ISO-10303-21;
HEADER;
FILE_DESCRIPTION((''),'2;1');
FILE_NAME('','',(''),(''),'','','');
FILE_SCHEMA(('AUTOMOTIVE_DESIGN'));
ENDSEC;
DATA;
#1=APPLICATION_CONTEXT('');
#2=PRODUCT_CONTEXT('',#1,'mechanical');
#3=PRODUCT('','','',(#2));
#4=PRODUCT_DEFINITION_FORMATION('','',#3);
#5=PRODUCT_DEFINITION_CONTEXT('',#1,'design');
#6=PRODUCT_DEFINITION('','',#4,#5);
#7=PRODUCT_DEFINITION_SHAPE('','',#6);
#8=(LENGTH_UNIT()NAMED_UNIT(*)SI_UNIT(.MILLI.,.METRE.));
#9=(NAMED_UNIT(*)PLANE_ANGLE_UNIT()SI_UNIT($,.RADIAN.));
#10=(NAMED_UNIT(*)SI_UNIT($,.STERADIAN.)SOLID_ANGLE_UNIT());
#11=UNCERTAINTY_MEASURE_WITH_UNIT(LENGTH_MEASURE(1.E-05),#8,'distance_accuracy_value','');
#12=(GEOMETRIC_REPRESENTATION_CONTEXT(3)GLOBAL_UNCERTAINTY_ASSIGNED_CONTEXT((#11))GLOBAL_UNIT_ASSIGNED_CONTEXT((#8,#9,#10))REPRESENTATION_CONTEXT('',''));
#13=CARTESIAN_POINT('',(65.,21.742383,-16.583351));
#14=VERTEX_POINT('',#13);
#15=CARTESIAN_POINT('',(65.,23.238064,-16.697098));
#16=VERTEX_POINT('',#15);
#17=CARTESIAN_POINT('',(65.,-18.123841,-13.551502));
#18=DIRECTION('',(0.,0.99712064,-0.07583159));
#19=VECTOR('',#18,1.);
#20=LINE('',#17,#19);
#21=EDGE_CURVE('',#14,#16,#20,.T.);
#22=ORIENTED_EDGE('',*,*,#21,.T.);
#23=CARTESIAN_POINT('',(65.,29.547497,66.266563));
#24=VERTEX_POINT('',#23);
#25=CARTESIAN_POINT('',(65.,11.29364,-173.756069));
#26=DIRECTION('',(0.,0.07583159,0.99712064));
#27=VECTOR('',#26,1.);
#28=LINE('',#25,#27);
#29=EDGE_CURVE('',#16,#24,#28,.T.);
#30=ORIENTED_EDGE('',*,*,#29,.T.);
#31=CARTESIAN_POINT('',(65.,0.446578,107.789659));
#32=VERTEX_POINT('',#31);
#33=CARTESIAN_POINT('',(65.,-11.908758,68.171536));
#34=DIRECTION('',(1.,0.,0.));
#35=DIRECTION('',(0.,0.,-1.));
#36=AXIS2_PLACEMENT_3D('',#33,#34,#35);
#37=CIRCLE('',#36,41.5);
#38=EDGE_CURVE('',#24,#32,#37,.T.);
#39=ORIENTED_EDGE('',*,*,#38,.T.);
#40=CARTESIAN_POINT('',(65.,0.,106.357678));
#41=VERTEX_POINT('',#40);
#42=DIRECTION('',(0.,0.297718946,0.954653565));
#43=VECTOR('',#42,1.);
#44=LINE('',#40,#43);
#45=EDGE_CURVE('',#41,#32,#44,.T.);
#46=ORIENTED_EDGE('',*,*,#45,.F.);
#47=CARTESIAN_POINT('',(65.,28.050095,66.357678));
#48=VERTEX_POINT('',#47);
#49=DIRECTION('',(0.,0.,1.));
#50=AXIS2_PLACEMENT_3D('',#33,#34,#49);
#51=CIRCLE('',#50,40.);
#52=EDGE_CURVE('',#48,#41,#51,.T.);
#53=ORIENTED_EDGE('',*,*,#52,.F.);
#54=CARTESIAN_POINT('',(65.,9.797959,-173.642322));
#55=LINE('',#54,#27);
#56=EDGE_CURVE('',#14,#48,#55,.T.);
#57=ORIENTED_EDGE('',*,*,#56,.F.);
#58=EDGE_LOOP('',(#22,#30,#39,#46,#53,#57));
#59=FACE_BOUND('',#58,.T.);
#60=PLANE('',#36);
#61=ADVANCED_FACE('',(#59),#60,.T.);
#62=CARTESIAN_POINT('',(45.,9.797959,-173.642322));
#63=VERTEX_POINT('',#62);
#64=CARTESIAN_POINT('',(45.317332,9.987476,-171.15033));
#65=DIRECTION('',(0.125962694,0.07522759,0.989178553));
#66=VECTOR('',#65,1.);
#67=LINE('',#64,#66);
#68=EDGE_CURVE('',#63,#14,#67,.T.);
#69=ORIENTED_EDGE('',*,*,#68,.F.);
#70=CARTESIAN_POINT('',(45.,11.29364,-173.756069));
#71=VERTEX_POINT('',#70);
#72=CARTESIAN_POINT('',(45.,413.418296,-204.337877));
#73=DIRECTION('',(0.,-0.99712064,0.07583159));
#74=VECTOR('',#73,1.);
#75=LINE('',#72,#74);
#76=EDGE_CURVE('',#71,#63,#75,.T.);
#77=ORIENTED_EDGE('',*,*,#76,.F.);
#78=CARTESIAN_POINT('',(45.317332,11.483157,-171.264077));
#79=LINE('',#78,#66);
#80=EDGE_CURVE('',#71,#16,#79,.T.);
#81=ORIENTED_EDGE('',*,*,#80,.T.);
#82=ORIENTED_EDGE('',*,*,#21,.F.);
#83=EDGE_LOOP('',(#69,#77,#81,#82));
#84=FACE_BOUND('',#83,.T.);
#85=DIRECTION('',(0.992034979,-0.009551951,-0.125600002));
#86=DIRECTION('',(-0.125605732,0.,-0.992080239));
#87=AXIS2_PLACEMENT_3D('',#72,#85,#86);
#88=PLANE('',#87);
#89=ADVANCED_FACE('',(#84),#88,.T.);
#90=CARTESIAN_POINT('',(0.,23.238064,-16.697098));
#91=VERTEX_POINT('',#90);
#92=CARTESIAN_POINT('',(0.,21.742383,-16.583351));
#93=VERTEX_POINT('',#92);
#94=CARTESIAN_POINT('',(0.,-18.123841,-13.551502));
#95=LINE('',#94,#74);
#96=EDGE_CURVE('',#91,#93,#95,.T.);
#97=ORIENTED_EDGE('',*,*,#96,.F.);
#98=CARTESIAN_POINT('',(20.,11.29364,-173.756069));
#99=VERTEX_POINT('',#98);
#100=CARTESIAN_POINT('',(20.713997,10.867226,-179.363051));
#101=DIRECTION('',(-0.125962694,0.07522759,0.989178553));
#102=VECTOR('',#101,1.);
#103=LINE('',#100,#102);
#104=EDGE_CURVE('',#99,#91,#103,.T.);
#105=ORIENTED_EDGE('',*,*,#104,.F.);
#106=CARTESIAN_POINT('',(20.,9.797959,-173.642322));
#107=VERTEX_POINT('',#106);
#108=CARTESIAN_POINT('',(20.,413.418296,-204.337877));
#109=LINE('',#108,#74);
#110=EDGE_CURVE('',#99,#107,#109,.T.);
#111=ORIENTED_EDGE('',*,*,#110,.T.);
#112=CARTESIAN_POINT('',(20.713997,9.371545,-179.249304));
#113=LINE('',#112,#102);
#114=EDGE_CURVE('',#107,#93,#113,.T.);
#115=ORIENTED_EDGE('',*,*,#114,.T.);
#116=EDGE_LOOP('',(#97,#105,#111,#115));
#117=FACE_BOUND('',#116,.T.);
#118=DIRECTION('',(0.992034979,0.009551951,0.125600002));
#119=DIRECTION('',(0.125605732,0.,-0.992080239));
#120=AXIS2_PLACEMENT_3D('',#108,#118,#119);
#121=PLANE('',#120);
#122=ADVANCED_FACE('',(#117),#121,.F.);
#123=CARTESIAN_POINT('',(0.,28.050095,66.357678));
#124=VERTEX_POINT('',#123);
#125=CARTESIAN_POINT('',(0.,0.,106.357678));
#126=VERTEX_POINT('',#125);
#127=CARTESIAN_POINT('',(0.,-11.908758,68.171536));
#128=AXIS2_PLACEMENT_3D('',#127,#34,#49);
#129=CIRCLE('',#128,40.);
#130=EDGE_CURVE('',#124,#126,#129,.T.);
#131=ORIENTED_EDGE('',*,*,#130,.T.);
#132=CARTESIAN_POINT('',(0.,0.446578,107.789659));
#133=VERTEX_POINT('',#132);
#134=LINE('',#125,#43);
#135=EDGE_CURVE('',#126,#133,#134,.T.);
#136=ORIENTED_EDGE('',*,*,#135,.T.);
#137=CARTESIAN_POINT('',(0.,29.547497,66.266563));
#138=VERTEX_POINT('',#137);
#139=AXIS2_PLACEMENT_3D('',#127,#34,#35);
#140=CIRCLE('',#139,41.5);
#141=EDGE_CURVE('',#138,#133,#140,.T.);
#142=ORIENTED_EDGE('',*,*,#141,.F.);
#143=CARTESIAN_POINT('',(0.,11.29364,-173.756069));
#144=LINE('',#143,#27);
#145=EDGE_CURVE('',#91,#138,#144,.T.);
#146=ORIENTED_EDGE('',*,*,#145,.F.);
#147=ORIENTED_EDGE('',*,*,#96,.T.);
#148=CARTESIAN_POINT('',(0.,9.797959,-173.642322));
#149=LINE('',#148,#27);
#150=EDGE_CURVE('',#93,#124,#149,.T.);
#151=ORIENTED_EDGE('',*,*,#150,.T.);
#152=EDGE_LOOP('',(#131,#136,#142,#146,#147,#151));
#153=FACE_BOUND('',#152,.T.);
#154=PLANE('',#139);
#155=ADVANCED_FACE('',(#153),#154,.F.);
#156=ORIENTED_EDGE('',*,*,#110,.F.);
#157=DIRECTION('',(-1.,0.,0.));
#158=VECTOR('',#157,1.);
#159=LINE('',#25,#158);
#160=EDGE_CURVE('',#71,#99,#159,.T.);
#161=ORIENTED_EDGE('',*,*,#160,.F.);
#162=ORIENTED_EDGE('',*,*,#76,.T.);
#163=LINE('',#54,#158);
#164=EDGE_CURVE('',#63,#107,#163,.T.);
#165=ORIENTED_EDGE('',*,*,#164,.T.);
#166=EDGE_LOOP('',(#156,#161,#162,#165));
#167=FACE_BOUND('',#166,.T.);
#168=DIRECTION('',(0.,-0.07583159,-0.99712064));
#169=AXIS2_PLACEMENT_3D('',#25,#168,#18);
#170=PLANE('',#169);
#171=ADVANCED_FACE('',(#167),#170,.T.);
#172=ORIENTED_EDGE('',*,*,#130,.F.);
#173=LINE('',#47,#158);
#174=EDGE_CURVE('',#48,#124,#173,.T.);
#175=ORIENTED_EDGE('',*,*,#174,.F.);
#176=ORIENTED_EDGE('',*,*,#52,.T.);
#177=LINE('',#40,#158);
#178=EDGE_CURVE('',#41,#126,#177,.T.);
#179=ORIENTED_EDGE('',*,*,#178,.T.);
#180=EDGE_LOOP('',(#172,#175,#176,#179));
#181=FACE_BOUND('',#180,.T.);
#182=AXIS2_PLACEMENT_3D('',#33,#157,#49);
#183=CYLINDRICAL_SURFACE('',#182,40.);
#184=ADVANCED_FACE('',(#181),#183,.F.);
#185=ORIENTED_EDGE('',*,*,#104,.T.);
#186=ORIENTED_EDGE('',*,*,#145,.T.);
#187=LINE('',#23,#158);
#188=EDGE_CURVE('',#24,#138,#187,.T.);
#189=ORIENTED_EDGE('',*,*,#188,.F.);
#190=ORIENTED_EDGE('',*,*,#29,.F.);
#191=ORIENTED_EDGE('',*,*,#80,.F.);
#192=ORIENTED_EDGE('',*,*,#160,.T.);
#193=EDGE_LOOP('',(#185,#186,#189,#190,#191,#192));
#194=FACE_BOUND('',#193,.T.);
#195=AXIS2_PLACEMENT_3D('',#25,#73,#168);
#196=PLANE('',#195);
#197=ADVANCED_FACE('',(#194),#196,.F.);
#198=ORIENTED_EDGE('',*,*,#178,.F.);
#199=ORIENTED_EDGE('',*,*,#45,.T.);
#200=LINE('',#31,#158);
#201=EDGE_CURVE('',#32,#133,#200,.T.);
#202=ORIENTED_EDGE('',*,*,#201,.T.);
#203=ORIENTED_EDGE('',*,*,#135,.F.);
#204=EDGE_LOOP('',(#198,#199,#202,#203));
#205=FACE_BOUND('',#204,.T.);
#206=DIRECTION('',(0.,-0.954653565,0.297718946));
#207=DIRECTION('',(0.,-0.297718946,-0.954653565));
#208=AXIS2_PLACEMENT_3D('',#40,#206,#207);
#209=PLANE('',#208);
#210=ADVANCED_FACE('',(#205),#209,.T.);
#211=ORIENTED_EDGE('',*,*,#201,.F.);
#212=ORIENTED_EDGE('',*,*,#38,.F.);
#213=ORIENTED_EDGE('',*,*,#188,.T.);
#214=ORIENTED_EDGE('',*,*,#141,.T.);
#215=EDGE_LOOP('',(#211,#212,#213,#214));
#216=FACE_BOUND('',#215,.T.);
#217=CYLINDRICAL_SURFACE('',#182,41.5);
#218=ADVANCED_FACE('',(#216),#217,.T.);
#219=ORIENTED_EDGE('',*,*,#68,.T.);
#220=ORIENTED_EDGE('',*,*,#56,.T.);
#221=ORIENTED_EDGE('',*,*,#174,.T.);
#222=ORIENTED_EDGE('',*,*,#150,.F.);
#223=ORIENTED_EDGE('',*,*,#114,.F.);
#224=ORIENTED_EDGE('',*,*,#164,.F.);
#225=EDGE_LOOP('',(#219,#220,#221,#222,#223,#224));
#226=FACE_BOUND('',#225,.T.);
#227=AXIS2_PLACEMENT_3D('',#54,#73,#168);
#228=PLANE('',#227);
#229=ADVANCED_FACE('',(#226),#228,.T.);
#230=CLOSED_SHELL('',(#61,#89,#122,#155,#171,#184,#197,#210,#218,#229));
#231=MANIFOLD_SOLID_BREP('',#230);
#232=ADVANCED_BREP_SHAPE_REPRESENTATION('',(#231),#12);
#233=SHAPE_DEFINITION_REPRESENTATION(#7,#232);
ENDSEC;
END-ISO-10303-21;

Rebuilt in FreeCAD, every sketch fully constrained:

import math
import FreeCAD as App
import Part
import Sketcher

V = App.Vector
Q = App.Units.Quantity

doc = App.newDocument("Part")
body = doc.addObject("PartDesign::Body", "Body")

# Sketch on YZ plane
sketch1 = body.newObject("Sketcher::SketchObject", "Sketch")
sketch1.AttachmentSupport = (doc.getObject("YZ_Plane"), [""])
sketch1.MapMode = "FlatFace"
sketch1.addGeometry(Part.LineSegment(V(28.1, 66.4, 0), V(9.8, -173.6, 0)), False)
sketch1.addGeometry(Part.LineSegment(V(9.8, -173.6, 0), V(11.3, -173.8, 0)), False)
sketch1.addGeometry(Part.LineSegment(V(11.3, -173.8, 0), V(29.5, 66.3, 0)), False)
sketch1.addGeometry(Part.ArcOfCircle(Part.Circle(V(-11.9, 68.2, 0), V(0, 0, 1), 41.5), math.radians(-3), math.radians(73)), False)
sketch1.addGeometry(Part.LineSegment(V(0.4, 107.8, 0), V(0, 106.4, 0)), False)
sketch1.addGeometry(Part.ArcOfCircle(Part.Circle(V(-11.9, 68.2, 0), V(0, 0, 1), 40), math.radians(-3), math.radians(73)), False)
sketch1.addConstraint(Sketcher.Constraint("Coincident", 0, 2, 1, 1))
sketch1.addConstraint(Sketcher.Constraint("Coincident", 1, 2, 2, 1))
sketch1.addConstraint(Sketcher.Constraint("Coincident", 2, 2, 3, 1))
sketch1.addConstraint(Sketcher.Constraint("Coincident", 3, 2, 4, 1))
sketch1.addConstraint(Sketcher.Constraint("Coincident", 4, 2, 5, 2))
sketch1.addConstraint(Sketcher.Constraint("Coincident", 5, 1, 0, 1))
sketch1.addConstraint(Sketcher.Constraint("Coincident", 5, 3, 3, 3))
sketch1.addConstraint(Sketcher.Constraint("PointOnObject", 4, 2, -2))
sketch1.addConstraint(Sketcher.Constraint("Perpendicular", 0, 1))
sketch1.addConstraint(Sketcher.Constraint("Perpendicular", 1, 2))
sketch1.addConstraint(Sketcher.Constraint("Equal", 1, 4))
sketch1.addConstraint(Sketcher.Constraint("Radius", 5, Q("40 mm")))
sketch1.addConstraint(Sketcher.Constraint("Radius", 3, Q("41.5 mm")))
sketch1.addConstraint(Sketcher.Constraint("DistanceY", 0, 2, 4, 2, Q("280 mm")))
sketch1.addConstraint(Sketcher.Constraint("DistanceY", 5, 1, 4, 2, Q("40 mm")))
sketch1.addConstraint(Sketcher.Constraint("Distance", 2, Q("240.71574 mm")))
sketch1.addConstraint(Sketcher.Constraint("DistanceX", -1, 1, 0, 2, Q("9.797959 mm")))
sketch1.addConstraint(Sketcher.Constraint("DistanceY", 0, 2, -1, 1, Q("173.642322 mm")))
sketch1.addConstraint(Sketcher.Constraint("DistanceX", -1, 1, 3, 2, Q("0.446578 mm")))
pad1 = body.newObject("PartDesign::Pad", "Pad")
pad1.Profile = sketch1
pad1.Length = 65

# Sketch on an angled plane
sketch2 = body.newObject("Sketcher::SketchObject", "Sketch001")
sketch2.Placement = App.Placement(V(0, 24.366957, -1.853121), App.Rotation(V(1, 0, 0), V(0, -0.07583159, -0.99712064), V(0, 0.99712064, -0.07583159), "ZXY"))
sketch2.addGeometry(Part.LineSegment(V(-73, -562, 0), V(93, 749, 0)), False)
sketch2.addGeometry(Part.LineSegment(V(93, 749, 0), V(-1060, 896, 0)), False)
sketch2.addGeometry(Part.LineSegment(V(-1060, 896, 0), V(-1227, -415, 0)), False)
sketch2.addGeometry(Part.LineSegment(V(-1227, -415, 0), V(-73, -562, 0)), False)
sketch2.addConstraint(Sketcher.Constraint("Coincident", 0, 2, 1, 1))
sketch2.addConstraint(Sketcher.Constraint("Coincident", 1, 2, 2, 1))
sketch2.addConstraint(Sketcher.Constraint("Coincident", 2, 2, 3, 1))
sketch2.addConstraint(Sketcher.Constraint("Coincident", 3, 2, 0, 1))
sketch2.addConstraint(Sketcher.Constraint("Perpendicular", 0, 1))
sketch2.addConstraint(Sketcher.Constraint("Perpendicular", 1, 2))
sketch2.addConstraint(Sketcher.Constraint("Perpendicular", 2, 3))
sketch2.addConstraint(Sketcher.Constraint("DistanceY", 2, 2, 1, 2, Q("1311.006801 mm")))
sketch2.addConstraint(Sketcher.Constraint("DistanceY", -1, 1, 1, 2, Q("895.610332 mm")))
sketch2.addConstraint(Sketcher.Constraint("DistanceX", 2, 2, -1, 1, Q("1226.726212 mm")))
sketch2.addConstraint(Sketcher.Constraint("DistanceX", 2, 2, 0, 2, Q("1319.95813 mm")))
sketch2.addConstraint(Sketcher.Constraint("Distance", 0, Q("1321.532838 mm")))
pocket1 = body.newObject("PartDesign::Pocket", "Pocket")
pocket1.Profile = sketch2
pocket1.Type = "ThroughAll"
pocket1.Midplane = True

# Sketch on an angled plane
sketch3 = body.newObject("Sketcher::SketchObject", "Sketch002")
sketch3.Placement = App.Placement(V(0, 24.366957, -1.853121), App.Rotation(V(1, 0, 0), V(0, -0.07583159, -0.99712064), V(0, 0.99712064, -0.07583159), "ZXY"))
sketch3.addGeometry(Part.LineSegment(V(-28, 749, 0), V(138, -562, 0)), False)
sketch3.addGeometry(Part.LineSegment(V(138, -562, 0), V(1292, -415, 0)), False)
sketch3.addGeometry(Part.LineSegment(V(1292, -415, 0), V(1125, 896, 0)), False)
sketch3.addGeometry(Part.LineSegment(V(1125, 896, 0), V(-28, 749, 0)), False)
sketch3.addConstraint(Sketcher.Constraint("Coincident", 0, 2, 1, 1))
sketch3.addConstraint(Sketcher.Constraint("Coincident", 1, 2, 2, 1))
sketch3.addConstraint(Sketcher.Constraint("Coincident", 2, 2, 3, 1))
sketch3.addConstraint(Sketcher.Constraint("Coincident", 3, 2, 0, 1))
sketch3.addConstraint(Sketcher.Constraint("Perpendicular", 0, 1))
sketch3.addConstraint(Sketcher.Constraint("Perpendicular", 1, 2))
sketch3.addConstraint(Sketcher.Constraint("Perpendicular", 2, 3))
sketch3.addConstraint(Sketcher.Constraint("DistanceY", 1, 2, 2, 2, Q("1311.006801 mm")))
sketch3.addConstraint(Sketcher.Constraint("DistanceX", -1, 1, 1, 2, Q("1291.726212 mm")))
sketch3.addConstraint(Sketcher.Constraint("DistanceY", 1, 2, -1, 1, Q("415.396469 mm")))
sketch3.addConstraint(Sketcher.Constraint("DistanceX", 3, 2, 1, 2, Q("1319.95813 mm")))
sketch3.addConstraint(Sketcher.Constraint("Distance", 0, Q("1321.532838 mm")))
pocket2 = body.newObject("PartDesign::Pocket", "Pocket001")
pocket2.Profile = sketch3
pocket2.Type = "ThroughAll"
pocket2.Midplane = True

doc.recompute()
